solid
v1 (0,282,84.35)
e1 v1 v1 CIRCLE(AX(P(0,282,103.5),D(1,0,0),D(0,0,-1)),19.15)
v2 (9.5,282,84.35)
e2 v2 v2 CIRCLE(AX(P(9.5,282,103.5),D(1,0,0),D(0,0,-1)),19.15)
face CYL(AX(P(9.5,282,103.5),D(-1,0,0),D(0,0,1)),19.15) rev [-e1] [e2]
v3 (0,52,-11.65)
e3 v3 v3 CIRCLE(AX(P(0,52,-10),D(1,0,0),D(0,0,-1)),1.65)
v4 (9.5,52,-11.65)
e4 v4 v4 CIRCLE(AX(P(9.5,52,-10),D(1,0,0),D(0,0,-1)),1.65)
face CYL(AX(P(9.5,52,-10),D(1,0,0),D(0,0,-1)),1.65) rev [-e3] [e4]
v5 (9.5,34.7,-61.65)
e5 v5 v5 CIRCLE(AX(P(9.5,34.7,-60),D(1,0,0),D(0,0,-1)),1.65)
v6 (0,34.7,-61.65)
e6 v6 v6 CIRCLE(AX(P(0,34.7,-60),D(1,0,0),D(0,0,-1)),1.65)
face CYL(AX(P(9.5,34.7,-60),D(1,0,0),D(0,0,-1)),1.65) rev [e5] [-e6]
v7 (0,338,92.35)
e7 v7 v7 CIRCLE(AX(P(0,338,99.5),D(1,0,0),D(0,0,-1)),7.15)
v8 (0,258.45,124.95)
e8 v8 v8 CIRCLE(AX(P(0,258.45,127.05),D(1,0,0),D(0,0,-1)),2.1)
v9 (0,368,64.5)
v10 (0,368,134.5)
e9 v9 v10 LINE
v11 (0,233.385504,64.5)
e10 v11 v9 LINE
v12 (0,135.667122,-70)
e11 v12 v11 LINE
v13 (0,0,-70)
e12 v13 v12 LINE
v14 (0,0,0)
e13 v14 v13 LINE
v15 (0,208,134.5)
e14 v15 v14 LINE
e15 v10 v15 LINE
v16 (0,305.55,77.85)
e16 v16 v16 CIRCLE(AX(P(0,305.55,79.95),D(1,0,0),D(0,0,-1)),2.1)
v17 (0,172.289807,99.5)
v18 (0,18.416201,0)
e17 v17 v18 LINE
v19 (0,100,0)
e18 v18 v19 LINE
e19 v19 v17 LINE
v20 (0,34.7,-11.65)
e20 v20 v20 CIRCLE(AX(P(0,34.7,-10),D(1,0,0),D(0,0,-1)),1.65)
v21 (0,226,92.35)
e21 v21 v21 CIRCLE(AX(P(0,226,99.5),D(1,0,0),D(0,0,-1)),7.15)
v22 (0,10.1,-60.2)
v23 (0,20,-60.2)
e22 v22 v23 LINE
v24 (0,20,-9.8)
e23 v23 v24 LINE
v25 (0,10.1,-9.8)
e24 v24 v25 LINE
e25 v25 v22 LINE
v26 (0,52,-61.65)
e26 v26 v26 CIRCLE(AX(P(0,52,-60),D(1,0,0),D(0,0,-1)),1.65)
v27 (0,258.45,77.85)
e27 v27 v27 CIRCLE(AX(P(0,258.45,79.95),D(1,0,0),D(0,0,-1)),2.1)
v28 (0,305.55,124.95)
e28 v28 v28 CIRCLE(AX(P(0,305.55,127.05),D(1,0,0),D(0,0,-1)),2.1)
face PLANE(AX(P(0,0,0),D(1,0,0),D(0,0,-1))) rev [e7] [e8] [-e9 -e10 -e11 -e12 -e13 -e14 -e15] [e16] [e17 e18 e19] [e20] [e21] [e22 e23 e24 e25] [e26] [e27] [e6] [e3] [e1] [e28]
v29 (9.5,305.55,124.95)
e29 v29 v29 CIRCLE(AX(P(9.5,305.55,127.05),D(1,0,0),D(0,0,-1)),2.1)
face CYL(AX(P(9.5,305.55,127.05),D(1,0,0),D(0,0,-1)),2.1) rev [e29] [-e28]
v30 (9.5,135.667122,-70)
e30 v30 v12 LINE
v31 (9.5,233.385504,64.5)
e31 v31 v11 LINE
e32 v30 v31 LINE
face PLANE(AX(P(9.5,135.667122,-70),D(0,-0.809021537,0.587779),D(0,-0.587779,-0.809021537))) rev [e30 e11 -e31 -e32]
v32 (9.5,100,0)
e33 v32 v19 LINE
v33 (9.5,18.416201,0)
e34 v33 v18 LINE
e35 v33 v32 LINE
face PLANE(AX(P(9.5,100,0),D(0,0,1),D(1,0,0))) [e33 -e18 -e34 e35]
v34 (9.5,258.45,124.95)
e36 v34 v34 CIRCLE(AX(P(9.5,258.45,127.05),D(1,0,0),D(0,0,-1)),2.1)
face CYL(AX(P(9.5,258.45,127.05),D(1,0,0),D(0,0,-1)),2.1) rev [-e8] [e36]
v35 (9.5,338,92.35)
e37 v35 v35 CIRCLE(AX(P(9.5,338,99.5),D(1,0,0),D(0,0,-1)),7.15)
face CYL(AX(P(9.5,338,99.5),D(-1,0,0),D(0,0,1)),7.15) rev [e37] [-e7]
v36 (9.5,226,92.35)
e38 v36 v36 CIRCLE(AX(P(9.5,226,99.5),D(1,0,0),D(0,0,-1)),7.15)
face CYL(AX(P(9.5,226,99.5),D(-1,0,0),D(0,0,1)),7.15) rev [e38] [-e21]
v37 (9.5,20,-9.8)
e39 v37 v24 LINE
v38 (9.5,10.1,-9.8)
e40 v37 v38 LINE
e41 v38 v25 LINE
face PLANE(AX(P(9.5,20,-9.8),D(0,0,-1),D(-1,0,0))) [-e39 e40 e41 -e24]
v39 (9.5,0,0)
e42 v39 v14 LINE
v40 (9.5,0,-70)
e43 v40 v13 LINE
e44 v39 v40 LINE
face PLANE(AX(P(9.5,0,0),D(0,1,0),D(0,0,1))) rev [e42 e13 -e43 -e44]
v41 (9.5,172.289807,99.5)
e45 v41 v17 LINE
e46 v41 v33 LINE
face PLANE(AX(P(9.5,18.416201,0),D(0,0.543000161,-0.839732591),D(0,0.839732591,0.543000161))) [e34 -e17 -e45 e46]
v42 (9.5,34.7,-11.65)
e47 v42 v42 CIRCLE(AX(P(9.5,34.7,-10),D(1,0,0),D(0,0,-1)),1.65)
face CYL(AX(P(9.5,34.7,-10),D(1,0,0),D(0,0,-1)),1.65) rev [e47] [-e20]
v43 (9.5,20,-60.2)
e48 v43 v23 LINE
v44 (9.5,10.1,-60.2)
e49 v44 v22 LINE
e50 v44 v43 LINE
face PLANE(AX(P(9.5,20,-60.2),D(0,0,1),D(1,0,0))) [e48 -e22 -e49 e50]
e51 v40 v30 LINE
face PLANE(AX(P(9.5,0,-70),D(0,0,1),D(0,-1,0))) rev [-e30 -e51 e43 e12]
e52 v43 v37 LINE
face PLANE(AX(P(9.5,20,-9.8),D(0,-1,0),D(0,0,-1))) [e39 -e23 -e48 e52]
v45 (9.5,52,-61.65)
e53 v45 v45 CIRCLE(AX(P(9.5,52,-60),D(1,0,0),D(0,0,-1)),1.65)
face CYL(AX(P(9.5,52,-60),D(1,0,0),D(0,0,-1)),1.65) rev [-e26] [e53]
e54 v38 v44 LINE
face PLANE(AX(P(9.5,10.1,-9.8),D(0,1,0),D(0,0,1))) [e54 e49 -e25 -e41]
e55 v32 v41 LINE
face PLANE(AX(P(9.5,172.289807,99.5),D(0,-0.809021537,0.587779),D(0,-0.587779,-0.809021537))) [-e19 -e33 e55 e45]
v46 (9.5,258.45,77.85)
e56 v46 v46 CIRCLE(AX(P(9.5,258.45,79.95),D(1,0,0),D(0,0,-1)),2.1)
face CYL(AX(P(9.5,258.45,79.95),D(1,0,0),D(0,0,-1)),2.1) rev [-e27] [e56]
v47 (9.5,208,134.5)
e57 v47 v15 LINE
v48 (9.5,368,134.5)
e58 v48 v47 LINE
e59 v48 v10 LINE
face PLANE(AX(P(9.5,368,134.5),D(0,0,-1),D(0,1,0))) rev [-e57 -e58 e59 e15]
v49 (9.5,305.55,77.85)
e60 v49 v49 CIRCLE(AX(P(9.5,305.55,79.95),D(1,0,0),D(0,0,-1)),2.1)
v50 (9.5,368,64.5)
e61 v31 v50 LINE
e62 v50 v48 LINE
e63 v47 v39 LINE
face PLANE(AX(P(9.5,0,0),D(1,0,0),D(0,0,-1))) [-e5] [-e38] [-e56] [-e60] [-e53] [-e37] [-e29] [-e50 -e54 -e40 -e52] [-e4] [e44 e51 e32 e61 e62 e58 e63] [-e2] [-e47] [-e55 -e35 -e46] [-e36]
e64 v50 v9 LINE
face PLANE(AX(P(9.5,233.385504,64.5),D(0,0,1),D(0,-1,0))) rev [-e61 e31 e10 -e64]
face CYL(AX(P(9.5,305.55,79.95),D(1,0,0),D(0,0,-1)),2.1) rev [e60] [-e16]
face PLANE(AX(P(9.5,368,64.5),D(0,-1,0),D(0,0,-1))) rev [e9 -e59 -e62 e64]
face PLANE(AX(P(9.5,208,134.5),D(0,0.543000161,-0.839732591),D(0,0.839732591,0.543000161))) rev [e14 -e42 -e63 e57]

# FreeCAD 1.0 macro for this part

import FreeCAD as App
import Part
import Sketcher

V = App.Vector
Q = App.Units.Quantity


def add_polygon(sketch, points):
    """Adds a closed chain of lines whose ends are joined by coincident constraints."""
    first, n = sketch.GeometryCount, len(points)
    for a, b in zip(points, points[1:] + points[:1]):
        sketch.addGeometry(Part.LineSegment(App.Vector(*a, 0), App.Vector(*b, 0)), False)
    for i in range(n):
        sketch.addConstraint(Sketcher.Constraint("Coincident", first + i, 2, first + (i + 1) % n, 1))

doc = App.newDocument("Part")
body = doc.addObject("PartDesign::Body", "Body")

sketch1 = body.newObject("Sketcher::SketchObject", "Sketch")
sketch1.AttachmentSupport = (doc.getObject("YZ_Plane"), [""])
sketch1.MapMode = "FlatFace"
add_polygon(sketch1, [(0, 0), (0, -70), (136, -70), (233, 64), (368, 64), (368, 134), (208, 134)])
add_polygon(sketch1, [(18, 0), (172, 100), (100, 0)])
add_polygon(sketch1, [(10, -60), (10, -10), (20, -10), (20, -60)])
sketch1.addGeometry(Part.Circle(V(226, 100, 0), V(0, 0, 1), 7), False)
sketch1.addGeometry(Part.Circle(V(282, 104, 0), V(0, 0, 1), 19), False)
sketch1.addGeometry(Part.Circle(V(338, 100, 0), V(0, 0, 1), 7), False)
sketch1.addConstraint(Sketcher.Constraint("Vertical", 0))
sketch1.addConstraint(Sketcher.Constraint("Horizontal", 1))
sketch1.addConstraint(Sketcher.Constraint("Horizontal", 3))
sketch1.addConstraint(Sketcher.Constraint("Vertical", 4))
sketch1.addConstraint(Sketcher.Constraint("Horizontal", 5))
sketch1.addConstraint(Sketcher.Constraint("Horizontal", 9))
sketch1.addConstraint(Sketcher.Constraint("Vertical", 10))
sketch1.addConstraint(Sketcher.Constraint("Horizontal", 11))
sketch1.addConstraint(Sketcher.Constraint("Vertical", 12))
sketch1.addConstraint(Sketcher.Constraint("Horizontal", 13))
sketch1.addConstraint(Sketcher.Constraint("Coincident", 6, 2, -1, 1))
sketch1.addConstraint(Sketcher.Constraint("Equal", 14, 16))
sketch1.addConstraint(Sketcher.Constraint("PointOnObject", 8, 2, -1))
sketch1.addConstraint(Sketcher.Constraint("Parallel", 6, 7))
sketch1.addConstraint(Sketcher.Constraint("Parallel", 2, 8))
sketch1.addConstraint(Sketcher.Constraint("Horizontal", 14, 3, 16, 3))
sketch1.addConstraint(Sketcher.Constraint("Horizontal", 16, 3, 7, 2))
sketch1.addConstraint(Sketcher.Constraint("Equal", 0, 4))
sketch1.addConstraint(Sketcher.Constraint("Diameter", 14, Q("14.3 mm")))
sketch1.addConstraint(Sketcher.Constraint("Diameter", 15, Q("38.3 mm")))
sketch1.addConstraint(Sketcher.Constraint("DistanceX", 5, 2, 5, 1, Q("160 mm")))
sketch1.addConstraint(Sketcher.Constraint("DistanceY", 0, 2, 0, 1, Q("70 mm")))
sketch1.addConstraint(Sketcher.Constraint("DistanceX", 11, 1, 11, 2, Q("9.9 mm")))
sketch1.addConstraint(Sketcher.Constraint("DistanceY", 10, 1, 10, 2, Q("50.4 mm")))
sketch1.addConstraint(Sketcher.Constraint("DistanceX", -1, 1, 14, 3, Q("226 mm")))
sketch1.addConstraint(Sketcher.Constraint("DistanceX", -1, 1, 15, 3, Q("282 mm")))
sketch1.addConstraint(Sketcher.Constraint("DistanceX", -1, 1, 16, 3, Q("338 mm")))
sketch1.addConstraint(Sketcher.Constraint("DistanceX", -1, 1, 3, 2, Q("368 mm")))
sketch1.addConstraint(Sketcher.Constraint("DistanceX", -1, 1, 8, 2, Q("100 mm")))
sketch1.addConstraint(Sketcher.Constraint("DistanceX", -1, 1, 11, 2, Q("20 mm")))
sketch1.addConstraint(Sketcher.Constraint("DistanceY", 14, 3, 15, 3, Q("4 mm")))
sketch1.addConstraint(Sketcher.Constraint("DistanceY", 2, 2, 14, 3, Q("35 mm")))
sketch1.addConstraint(Sketcher.Constraint("DistanceY", -1, 1, 14, 3, Q("99.5 mm")))
sketch1.addConstraint(Sketcher.Constraint("DistanceY", 10, 2, -1, 1, Q("9.8 mm")))
sketch1.addConstraint(Sketcher.Constraint("DistanceX", 9, 2, 9, 1, Q("81.583799 mm")))
sketch1.addConstraint(Sketcher.Constraint("DistanceX", 1, 1, 1, 2, Q("135.667122 mm")))
pad1 = body.newObject("PartDesign::Pad", "Pad")
pad1.Profile = sketch1
pad1.Length = 9.5

sketch2 = body.newObject("Sketcher::SketchObject", "Sketch001")
sketch2.AttachmentSupport = (doc.getObject("YZ_Plane"), [""])
sketch2.MapMode = "FlatFace"
sketch2.AttachmentOffset = App.Placement(V(0, 0, 9.5), App.Rotation())
sketch2.addGeometry(Part.Circle(V(34.7, -10, 0), V(0, 0, 1), 1.6), False)
sketch2.addGeometry(Part.Circle(V(52, -10, 0), V(0, 0, 1), 1.6), False)
sketch2.addGeometry(Part.Circle(V(52, -60, 0), V(0, 0, 1), 1.6), False)
sketch2.addGeometry(Part.Circle(V(34.7, -60, 0), V(0, 0, 1), 1.6), False)
sketch2.addConstraint(Sketcher.Constraint("Equal", 0, 1))
sketch2.addConstraint(Sketcher.Constraint("Equal", 1, 2))
sketch2.addConstraint(Sketcher.Constraint("Equal", 2, 3))
sketch2.addConstraint(Sketcher.Constraint("Horizontal", 0, 3, 1, 3))
sketch2.addConstraint(Sketcher.Constraint("Horizontal", 2, 3, 3, 3))
sketch2.addConstraint(Sketcher.Constraint("Vertical", 1, 3, 2, 3))
sketch2.addConstraint(Sketcher.Constraint("Vertical", 0, 3, 3, 3))
sketch2.addConstraint(Sketcher.Constraint("Diameter", 0, Q("3.3 mm")))
sketch2.addConstraint(Sketcher.Constraint("DistanceY", 0, 3, -1, 1, Q("10 mm")))
sketch2.addConstraint(Sketcher.Constraint("DistanceX", -1, 1, 1, 3, Q("52 mm")))
sketch2.addConstraint(Sketcher.Constraint("DistanceY", 2, 3, -1, 1, Q("60 mm")))
sketch2.addConstraint(Sketcher.Constraint("DistanceX", -1, 1, 0, 3, Q("34.7 mm")))
doc.recompute()
hole = body.newObject("PartDesign::Hole", "Hole")
hole.Profile = sketch2
hole.ThreadType = "None"
hole.Diameter = 3.3
hole.DepthType = "ThroughAll"

sketch3 = body.newObject("Sketcher::SketchObject", "Sketch002")
sketch3.AttachmentSupport = (doc.getObject("YZ_Plane"), [""])
sketch3.MapMode = "FlatFace"
sketch3.AttachmentOffset = App.Placement(V(0, 0, 9.5), App.Rotation())
sketch3.addGeometry(Part.Circle(V(305.6, 127, 0), V(0, 0, 1), 2.1), False)
sketch3.addGeometry(Part.Circle(V(305.6, 80, 0), V(0, 0, 1), 2.1), False)
sketch3.addGeometry(Part.Circle(V(258.4, 80, 0), V(0, 0, 1), 2.1), False)
sketch3.addGeometry(Part.Circle(V(258.4, 127, 0), V(0, 0, 1), 2.1), False)
sketch3.addConstraint(Sketcher.Constraint("Equal", 0, 1))
sketch3.addConstraint(Sketcher.Constraint("Equal", 1, 2))
sketch3.addConstraint(Sketcher.Constraint("Equal", 2, 3))
sketch3.addConstraint(Sketcher.Constraint("Horizontal", 1, 3, 2, 3))
sketch3.addConstraint(Sketcher.Constraint("Horizontal", 0, 3, 3, 3))
sketch3.addConstraint(Sketcher.Constraint("Vertical", 0, 3, 1, 3))
sketch3.addConstraint(Sketcher.Constraint("Vertical", 2, 3, 3, 3))
sketch3.addConstraint(Sketcher.Constraint("Diameter", 0, Q("4.2 mm")))
sketch3.addConstraint(Sketcher.Constraint("DistanceY", 1, 3, 0, 3, Q("47.1 mm")))
sketch3.addConstraint(Sketcher.Constraint("DistanceX", 2, 3, 1, 3, Q("47.1 mm")))
sketch3.addConstraint(Sketcher.Constraint("DistanceX", -1, 1, 0, 3, Q("305.55 mm")))
sketch3.addConstraint(Sketcher.Constraint("DistanceY", -1, 1, 0, 3, Q("127.05 mm")))
doc.recompute()
hole2 = body.newObject("PartDesign::Hole", "Hole001")
hole2.Profile = sketch3
hole2.ThreadType = "None"
hole2.Diameter = 4.2
hole2.DepthType = "ThroughAll"

doc.recompute()
